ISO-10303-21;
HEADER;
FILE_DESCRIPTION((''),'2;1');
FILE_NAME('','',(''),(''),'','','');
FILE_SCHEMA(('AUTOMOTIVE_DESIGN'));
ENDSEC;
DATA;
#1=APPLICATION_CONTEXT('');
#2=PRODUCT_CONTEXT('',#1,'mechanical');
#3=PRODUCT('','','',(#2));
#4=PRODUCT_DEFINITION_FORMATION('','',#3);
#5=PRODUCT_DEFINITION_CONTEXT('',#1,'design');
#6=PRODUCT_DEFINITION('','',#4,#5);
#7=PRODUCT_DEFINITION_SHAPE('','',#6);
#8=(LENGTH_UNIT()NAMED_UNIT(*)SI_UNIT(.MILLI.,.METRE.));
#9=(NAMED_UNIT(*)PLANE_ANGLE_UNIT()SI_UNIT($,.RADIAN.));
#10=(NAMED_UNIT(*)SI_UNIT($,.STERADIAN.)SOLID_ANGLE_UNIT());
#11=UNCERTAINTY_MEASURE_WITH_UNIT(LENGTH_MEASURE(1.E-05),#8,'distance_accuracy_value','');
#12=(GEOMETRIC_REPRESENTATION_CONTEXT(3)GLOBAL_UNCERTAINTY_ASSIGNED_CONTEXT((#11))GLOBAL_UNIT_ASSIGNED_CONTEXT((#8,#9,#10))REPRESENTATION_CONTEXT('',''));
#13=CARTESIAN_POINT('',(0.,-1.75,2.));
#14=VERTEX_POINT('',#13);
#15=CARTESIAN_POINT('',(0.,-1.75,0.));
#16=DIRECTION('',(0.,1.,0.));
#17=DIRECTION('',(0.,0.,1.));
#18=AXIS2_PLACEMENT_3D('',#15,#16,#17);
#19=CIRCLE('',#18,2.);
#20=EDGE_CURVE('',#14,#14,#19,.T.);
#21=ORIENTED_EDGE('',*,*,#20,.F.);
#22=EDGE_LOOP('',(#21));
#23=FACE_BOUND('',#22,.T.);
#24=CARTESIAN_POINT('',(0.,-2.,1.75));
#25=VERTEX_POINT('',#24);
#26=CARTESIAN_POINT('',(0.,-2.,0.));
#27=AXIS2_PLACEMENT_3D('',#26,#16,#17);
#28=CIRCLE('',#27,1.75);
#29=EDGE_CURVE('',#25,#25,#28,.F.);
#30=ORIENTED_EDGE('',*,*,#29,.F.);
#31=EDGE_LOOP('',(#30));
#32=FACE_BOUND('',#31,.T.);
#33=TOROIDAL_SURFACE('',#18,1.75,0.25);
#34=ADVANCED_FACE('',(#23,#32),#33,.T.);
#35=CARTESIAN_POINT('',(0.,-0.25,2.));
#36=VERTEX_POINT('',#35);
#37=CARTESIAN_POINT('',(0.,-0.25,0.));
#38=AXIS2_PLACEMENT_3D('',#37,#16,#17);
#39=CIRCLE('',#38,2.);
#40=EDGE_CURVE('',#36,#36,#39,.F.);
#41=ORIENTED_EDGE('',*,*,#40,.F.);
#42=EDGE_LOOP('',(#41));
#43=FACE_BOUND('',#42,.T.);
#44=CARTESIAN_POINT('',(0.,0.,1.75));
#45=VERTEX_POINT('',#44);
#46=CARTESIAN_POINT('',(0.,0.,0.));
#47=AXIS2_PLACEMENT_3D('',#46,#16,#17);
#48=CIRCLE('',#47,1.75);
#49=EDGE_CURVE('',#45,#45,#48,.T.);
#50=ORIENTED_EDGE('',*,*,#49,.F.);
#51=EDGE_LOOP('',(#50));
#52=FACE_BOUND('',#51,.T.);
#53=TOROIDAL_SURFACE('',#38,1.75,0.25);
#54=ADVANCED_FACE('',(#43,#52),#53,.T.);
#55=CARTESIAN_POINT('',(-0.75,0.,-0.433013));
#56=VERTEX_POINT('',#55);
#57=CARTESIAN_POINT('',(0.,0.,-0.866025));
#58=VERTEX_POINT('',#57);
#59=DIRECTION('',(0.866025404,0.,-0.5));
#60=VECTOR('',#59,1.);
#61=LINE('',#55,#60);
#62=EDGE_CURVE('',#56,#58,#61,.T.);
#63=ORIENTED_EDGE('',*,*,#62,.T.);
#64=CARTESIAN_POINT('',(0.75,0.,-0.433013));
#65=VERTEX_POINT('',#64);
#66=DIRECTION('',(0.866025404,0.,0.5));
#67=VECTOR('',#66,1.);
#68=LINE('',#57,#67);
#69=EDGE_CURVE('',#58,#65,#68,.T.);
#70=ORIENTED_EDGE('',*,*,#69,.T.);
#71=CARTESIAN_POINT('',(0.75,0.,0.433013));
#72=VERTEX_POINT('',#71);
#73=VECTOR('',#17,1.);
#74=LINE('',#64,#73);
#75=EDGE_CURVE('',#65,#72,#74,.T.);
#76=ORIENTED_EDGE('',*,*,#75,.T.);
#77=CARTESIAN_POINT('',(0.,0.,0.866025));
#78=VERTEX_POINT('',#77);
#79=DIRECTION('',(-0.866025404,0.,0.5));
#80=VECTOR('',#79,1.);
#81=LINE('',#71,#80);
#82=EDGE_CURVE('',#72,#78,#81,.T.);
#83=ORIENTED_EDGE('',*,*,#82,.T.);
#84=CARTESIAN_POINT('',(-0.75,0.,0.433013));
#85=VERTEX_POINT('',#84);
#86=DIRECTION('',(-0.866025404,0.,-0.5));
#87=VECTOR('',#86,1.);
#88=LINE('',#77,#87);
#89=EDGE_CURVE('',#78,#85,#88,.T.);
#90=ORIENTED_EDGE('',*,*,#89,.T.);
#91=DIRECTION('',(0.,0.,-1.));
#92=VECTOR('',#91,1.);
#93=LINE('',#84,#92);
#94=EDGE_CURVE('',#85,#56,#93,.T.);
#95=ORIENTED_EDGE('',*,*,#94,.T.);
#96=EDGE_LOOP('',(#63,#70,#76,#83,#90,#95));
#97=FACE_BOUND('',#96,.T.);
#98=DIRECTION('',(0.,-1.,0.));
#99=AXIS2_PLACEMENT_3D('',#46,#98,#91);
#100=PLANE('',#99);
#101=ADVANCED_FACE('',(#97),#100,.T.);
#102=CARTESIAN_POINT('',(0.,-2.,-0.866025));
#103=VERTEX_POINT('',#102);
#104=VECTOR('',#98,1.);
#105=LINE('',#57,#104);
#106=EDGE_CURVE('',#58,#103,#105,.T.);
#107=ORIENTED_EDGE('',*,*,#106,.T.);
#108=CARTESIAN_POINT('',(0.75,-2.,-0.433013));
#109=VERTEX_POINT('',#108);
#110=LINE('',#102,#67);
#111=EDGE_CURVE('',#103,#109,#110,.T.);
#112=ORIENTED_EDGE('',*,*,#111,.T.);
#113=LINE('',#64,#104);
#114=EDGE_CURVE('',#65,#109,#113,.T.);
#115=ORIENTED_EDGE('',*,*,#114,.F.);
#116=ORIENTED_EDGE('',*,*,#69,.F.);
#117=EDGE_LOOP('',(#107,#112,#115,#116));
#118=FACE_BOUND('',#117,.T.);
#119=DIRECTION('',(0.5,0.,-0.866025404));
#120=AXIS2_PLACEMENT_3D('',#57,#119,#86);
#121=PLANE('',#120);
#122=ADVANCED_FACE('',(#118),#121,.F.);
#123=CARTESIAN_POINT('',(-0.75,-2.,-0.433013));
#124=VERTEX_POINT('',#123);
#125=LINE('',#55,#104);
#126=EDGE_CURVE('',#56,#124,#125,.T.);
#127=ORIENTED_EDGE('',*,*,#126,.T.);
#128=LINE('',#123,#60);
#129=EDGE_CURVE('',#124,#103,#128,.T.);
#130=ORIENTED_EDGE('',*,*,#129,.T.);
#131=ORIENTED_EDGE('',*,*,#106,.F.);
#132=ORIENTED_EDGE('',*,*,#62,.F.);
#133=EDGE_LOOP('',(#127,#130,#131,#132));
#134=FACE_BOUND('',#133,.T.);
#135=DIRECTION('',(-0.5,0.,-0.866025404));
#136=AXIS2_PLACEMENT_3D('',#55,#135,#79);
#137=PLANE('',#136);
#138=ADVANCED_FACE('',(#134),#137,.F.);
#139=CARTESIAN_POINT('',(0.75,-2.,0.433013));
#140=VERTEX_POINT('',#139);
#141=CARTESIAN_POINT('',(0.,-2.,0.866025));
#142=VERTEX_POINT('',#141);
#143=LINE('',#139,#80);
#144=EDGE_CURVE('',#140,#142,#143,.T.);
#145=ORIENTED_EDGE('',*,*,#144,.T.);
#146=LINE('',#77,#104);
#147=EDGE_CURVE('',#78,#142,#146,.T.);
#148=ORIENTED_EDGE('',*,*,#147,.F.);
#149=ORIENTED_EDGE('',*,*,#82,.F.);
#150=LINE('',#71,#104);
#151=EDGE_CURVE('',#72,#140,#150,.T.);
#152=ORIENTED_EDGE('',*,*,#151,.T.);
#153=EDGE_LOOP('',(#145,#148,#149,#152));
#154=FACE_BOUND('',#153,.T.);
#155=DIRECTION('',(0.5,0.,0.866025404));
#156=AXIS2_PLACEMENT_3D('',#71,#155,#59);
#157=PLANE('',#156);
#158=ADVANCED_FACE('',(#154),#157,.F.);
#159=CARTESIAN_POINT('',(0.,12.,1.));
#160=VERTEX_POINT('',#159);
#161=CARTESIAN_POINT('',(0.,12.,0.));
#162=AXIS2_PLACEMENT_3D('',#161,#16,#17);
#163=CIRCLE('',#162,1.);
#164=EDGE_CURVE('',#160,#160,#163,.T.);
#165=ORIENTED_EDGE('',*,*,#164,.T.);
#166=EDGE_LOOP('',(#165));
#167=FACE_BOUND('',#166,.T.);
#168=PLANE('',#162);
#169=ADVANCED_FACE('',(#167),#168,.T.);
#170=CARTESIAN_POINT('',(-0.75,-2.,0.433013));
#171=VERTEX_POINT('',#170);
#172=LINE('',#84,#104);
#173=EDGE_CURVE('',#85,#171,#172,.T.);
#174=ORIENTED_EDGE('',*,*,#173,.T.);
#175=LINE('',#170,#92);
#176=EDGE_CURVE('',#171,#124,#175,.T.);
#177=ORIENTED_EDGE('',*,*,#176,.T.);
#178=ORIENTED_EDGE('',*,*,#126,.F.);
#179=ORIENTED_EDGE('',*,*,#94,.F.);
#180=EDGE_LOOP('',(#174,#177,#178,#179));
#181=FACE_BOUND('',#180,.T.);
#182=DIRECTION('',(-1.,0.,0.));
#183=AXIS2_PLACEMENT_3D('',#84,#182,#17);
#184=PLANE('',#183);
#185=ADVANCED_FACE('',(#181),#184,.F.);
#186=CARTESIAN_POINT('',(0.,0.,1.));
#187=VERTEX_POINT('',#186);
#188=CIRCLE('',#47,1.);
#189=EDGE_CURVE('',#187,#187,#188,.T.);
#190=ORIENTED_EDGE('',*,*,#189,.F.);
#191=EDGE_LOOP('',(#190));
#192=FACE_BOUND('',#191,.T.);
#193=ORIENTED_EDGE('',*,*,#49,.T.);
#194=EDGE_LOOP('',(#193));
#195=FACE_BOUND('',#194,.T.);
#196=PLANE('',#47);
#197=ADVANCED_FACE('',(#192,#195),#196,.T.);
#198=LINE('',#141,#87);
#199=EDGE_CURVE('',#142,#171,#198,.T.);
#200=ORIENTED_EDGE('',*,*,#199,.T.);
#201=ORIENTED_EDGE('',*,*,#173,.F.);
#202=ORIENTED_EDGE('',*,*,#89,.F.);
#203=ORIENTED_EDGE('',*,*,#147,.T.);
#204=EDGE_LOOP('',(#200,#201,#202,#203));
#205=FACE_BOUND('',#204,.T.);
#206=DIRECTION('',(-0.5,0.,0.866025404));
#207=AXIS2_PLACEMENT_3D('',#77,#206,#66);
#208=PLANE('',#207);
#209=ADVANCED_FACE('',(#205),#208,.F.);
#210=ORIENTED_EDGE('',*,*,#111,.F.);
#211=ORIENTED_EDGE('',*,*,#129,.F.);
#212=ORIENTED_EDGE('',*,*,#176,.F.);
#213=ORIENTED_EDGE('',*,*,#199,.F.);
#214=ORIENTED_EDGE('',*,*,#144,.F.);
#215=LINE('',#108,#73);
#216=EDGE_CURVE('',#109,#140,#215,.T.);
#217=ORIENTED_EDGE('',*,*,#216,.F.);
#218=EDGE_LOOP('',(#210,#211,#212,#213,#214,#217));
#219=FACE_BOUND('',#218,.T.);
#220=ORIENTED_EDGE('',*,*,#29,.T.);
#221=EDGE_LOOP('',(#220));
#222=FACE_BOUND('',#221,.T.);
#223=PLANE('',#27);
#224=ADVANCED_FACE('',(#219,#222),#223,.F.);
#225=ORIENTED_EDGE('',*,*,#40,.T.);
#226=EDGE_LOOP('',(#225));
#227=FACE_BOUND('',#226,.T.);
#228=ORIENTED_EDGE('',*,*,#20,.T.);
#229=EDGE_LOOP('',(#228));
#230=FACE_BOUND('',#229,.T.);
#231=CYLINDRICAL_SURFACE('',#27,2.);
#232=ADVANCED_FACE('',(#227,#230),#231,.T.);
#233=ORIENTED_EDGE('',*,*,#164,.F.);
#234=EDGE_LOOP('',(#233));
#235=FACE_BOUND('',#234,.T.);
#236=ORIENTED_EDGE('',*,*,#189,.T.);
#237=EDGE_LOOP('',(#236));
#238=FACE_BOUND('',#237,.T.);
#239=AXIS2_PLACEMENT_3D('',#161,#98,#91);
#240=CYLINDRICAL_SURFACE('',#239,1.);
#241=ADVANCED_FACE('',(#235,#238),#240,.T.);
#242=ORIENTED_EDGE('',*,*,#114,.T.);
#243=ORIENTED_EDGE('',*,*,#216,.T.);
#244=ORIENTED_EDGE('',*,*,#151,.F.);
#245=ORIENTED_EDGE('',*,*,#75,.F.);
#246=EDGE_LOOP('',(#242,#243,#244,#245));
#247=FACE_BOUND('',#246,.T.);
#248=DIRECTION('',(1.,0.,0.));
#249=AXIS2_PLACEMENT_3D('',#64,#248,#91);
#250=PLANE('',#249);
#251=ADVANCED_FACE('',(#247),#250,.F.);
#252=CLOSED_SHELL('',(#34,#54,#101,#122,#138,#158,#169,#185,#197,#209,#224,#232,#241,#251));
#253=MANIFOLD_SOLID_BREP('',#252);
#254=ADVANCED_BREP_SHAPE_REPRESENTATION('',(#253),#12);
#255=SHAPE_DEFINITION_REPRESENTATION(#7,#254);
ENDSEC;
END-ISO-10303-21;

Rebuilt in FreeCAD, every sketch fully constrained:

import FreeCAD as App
import Part
import Sketcher
from FreeCAD import Vector
Q = App.Units.Quantity


def edges_at(feature, points):
    """Names of the edges that pass closest to the given points."""
    edges = feature.Shape.Edges
    near = lambda p: min(range(len(edges)), key=lambda i: edges[i].distToShape(Part.Vertex(*p))[0])
    return sorted({f"Edge{near(p) + 1}" for p in points})


def add_polygon(sketch, points):
    """Adds a closed chain of lines whose ends are joined by coincident constraints."""
    first, n = sketch.GeometryCount, len(points)
    for a, b in zip(points, points[1:] + points[:1]):
        sketch.addGeometry(Part.LineSegment(App.Vector(*a, 0), App.Vector(*b, 0)), False)
    for i in range(n):
        sketch.addConstraint(Sketcher.Constraint("Coincident", first + i, 2, first + (i + 1) % n, 1))

doc = App.newDocument("Part")
body = doc.addObject("PartDesign::Body", "Body")

# Sketch on XZ plane
sketch1 = doc.addObject("Sketcher::SketchObject", "Sketch")
body.addObject(sketch1)
sketch1.AttachmentSupport = (doc.XZ_Plane, [""])
sketch1.MapMode = "FlatFace"
sketch1.addGeometry(Part.Circle(Vector(0, 0, 0), Vector(0, 0, 1), 1), False)
sketch1.addConstraint([
    Sketcher.Constraint("Coincident", 0, 3, -1, 1),
    Sketcher.Constraint("Diameter", 0, Q("2 mm")),
])
pad1 = doc.addObject("PartDesign::Pad", "Pad")
body.addObject(pad1)
pad1.Profile = sketch1
pad1.Length = 12
pad1.Reversed = True

# Sketch on XZ plane
sketch2 = doc.addObject("Sketcher::SketchObject", "Sketch001")
body.addObject(sketch2)
sketch2.AttachmentSupport = (doc.XZ_Plane, [""])
sketch2.MapMode = "FlatFace"
sketch2.AttachmentOffset = App.Placement(Vector(0, 0, 2), App.Rotation())
sketch2.addGeometry(Part.Circle(Vector(0, 0, 0), Vector(0, 0, 1), 2), False)
sketch2.addConstraint([
    Sketcher.Constraint("Coincident", 0, 3, -1, 1),
    Sketcher.Constraint("Diameter", 0, Q("4 mm")),
])
pad2 = doc.addObject("PartDesign::Pad", "Pad001")
body.addObject(pad2)
pad2.Profile = sketch2
pad2.Length = 2
pad2.Reversed = True

# Sketch on XZ plane
sketch3 = doc.addObject("Sketcher::SketchObject", "Sketch002")
body.addObject(sketch3)
sketch3.AttachmentSupport = (doc.XZ_Plane, [""])
sketch3.MapMode = "FlatFace"
sketch3.AttachmentOffset = App.Placement(Vector(0, 0, 2), App.Rotation())
add_polygon(sketch3, [(0, 0.9), (-0.8, 0.4), (-0.8, -0.4), (0, -0.9), (0.8, -0.4), (0.8, 0.4)])  # lines 0-5
sketch3.addConstraint([
    Sketcher.Constraint("Vertical", 1),
    Sketcher.Constraint("Vertical", 4),
    Sketcher.Constraint("Symmetric", 0, 2, 3, 2, -1, 1),
    Sketcher.Constraint("Symmetric", 2, 2, 5, 2, -1, 1),
    Sketcher.Constraint("PointOnObject", 2, 2, -2),
    Sketcher.Constraint("Parallel", 2, 5),
    Sketcher.Constraint("Horizontal", 1, 2, 3, 2),
    Sketcher.Constraint("Angle", 0, Q("-150 deg")),
    Sketcher.Constraint("DistanceX", 1, 2, 3, 2, Q("1.5 mm")),
    Sketcher.Constraint("DistanceY", 1, 2, 1, 1, Q("0.866025 mm")),
])
pocket1 = doc.addObject("PartDesign::Pocket", "Pocket")
body.addObject(pocket1)
pocket1.Profile = sketch3
pocket1.Length = 2
doc.recompute()

fillet = doc.addObject("PartDesign::Fillet", "Fillet")
body.addObject(fillet)
fillet.Base = (pocket1, edges_at(pocket1, [(0, -2, -2), (0, 0, -2)]))
fillet.Radius = 0.25

doc.recompute()
